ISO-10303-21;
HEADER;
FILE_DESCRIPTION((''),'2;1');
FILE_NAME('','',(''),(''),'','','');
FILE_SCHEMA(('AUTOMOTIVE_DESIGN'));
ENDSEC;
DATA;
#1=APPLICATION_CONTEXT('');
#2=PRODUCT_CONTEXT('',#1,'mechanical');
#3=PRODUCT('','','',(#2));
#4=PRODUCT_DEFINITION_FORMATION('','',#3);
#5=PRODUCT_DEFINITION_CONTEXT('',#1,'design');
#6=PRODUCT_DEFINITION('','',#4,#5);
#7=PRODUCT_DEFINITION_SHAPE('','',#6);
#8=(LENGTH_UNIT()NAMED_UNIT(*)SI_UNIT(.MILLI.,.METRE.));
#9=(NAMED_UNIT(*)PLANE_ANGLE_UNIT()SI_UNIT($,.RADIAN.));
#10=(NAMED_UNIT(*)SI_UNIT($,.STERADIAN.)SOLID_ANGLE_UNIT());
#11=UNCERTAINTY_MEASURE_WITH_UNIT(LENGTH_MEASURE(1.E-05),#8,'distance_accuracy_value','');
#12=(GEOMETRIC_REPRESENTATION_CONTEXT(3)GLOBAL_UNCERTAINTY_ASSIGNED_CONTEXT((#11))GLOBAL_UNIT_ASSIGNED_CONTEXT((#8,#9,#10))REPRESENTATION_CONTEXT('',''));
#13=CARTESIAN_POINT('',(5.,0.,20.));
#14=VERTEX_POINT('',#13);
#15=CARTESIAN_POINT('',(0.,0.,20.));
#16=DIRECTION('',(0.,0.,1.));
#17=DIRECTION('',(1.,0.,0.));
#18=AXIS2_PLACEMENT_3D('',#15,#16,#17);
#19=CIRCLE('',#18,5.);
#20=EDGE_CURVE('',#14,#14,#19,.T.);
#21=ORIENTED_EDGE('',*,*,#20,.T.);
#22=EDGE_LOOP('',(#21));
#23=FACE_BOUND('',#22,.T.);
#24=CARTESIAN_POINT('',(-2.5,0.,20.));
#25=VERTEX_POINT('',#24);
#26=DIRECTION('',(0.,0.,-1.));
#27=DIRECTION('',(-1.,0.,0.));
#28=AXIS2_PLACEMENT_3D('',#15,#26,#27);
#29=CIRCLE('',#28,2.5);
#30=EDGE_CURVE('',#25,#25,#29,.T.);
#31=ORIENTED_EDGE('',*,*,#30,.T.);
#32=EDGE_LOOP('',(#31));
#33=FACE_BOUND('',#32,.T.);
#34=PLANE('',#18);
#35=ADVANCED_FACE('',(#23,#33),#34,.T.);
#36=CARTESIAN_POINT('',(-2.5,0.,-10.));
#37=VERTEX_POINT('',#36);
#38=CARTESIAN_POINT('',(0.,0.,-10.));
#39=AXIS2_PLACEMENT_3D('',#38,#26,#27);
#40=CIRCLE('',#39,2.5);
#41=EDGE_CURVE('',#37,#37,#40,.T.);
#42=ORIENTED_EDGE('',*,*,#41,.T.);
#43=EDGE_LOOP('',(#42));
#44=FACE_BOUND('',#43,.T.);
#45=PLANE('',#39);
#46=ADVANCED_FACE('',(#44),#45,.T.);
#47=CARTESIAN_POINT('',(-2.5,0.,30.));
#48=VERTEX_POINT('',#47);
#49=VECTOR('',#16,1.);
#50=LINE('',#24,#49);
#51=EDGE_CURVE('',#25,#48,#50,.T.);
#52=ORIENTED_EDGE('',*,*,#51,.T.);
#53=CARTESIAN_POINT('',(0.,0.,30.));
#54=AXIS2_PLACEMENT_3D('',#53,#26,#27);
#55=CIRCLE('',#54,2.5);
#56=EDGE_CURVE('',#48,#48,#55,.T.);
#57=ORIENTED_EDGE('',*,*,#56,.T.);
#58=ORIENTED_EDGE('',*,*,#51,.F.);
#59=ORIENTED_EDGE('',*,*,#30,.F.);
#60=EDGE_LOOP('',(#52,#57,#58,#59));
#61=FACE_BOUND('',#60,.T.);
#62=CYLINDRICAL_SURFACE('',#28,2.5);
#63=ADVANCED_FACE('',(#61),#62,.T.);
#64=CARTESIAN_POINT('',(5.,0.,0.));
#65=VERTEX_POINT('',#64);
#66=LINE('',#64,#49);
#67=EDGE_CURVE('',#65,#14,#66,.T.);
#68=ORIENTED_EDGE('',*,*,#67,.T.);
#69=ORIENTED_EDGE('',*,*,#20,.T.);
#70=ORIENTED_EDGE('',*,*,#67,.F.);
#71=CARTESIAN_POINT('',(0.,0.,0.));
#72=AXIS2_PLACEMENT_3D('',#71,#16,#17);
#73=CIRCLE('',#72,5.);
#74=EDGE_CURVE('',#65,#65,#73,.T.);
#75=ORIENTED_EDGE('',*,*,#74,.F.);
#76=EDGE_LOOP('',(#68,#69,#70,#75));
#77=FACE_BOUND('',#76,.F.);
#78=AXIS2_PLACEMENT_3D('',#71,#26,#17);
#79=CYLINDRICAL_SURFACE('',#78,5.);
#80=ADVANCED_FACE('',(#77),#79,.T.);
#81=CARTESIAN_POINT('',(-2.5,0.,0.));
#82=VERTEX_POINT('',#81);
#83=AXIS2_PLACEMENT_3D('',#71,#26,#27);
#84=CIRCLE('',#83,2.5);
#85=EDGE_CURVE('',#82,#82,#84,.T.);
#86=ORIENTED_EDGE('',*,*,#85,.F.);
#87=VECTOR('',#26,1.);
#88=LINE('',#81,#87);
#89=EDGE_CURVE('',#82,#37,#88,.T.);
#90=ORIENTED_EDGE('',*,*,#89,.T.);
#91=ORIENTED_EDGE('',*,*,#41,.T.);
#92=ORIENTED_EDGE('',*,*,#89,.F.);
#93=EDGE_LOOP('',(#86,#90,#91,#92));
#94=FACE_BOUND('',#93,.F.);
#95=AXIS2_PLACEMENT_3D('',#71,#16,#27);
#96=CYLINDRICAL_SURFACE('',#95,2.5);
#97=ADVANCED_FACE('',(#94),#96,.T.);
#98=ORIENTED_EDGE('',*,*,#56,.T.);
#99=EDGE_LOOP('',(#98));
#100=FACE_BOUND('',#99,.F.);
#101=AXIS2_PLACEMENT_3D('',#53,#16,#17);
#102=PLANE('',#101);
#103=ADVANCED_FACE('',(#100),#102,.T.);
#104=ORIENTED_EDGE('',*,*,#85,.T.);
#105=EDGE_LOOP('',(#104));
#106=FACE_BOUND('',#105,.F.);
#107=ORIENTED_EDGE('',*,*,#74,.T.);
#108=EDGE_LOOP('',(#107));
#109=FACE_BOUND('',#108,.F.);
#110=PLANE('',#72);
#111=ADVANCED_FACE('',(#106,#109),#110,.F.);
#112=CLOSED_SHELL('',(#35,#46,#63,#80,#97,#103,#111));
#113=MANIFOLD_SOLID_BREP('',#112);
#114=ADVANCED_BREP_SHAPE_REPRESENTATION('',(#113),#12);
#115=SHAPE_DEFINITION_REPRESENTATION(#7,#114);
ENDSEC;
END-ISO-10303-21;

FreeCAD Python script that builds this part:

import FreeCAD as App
import Part
import Sketcher
from FreeCAD import Vector

doc = App.newDocument("Part")
body = doc.addObject("PartDesign::Body", "Body")

# Sketch on XY plane
sketch1 = body.newObject("Sketcher::SketchObject", "Sketch")
sketch1.AttachmentSupport = (doc.getObject("XY_Plane"), [""])
sketch1.MapMode = "FlatFace"
sketch1.addGeometry(Part.Circle(Vector(0, 0, 0), Vector(0, 0, 1), 5), False)
sketch1.addConstraint(Sketcher.Constraint("Coincident", 0, 3, -1, 1))
sketch1.addConstraint(Sketcher.Constraint("Diameter", 0, 10.0))
pad1 = body.newObject("PartDesign::Pad", "Pad")
pad1.Profile = sketch1
pad1.Length = 20

# Sketch on XY plane
sketch2 = body.newObject("Sketcher::SketchObject", "Sketch001")
sketch2.AttachmentSupport = (doc.getObject("XY_Plane"), [""])
sketch2.MapMode = "FlatFace"
sketch2.addGeometry(Part.Circle(Vector(0, 0, 0), Vector(0, 0, 1), 2.5), False)
sketch2.addConstraint(Sketcher.Constraint("Coincident", 0, 3, -1, 1))
sketch2.addConstraint(Sketcher.Constraint("Diameter", 0, 5.0))
pad2 = body.newObject("PartDesign::Pad", "Pad001")
pad2.Profile = sketch2
pad2.Length = 10
pad2.Reversed = True
doc.recompute()

datumplane = body.newObject("PartDesign::Plane", "DatumPlane")
datumplane.AttachmentSupport = (doc.getObject("XY_Plane"), [""])
datumplane.MapMode = "FlatFace"
datumplane.AttachmentOffset = App.Placement(Vector(0, 0, 10), App.Rotation())
mirrored = body.newObject("PartDesign::Mirrored", "Mirrored")
mirrored.Originals = [pad2]
mirrored.MirrorPlane = (datumplane, [""])
body.Tip = mirrored

doc.recompute()
